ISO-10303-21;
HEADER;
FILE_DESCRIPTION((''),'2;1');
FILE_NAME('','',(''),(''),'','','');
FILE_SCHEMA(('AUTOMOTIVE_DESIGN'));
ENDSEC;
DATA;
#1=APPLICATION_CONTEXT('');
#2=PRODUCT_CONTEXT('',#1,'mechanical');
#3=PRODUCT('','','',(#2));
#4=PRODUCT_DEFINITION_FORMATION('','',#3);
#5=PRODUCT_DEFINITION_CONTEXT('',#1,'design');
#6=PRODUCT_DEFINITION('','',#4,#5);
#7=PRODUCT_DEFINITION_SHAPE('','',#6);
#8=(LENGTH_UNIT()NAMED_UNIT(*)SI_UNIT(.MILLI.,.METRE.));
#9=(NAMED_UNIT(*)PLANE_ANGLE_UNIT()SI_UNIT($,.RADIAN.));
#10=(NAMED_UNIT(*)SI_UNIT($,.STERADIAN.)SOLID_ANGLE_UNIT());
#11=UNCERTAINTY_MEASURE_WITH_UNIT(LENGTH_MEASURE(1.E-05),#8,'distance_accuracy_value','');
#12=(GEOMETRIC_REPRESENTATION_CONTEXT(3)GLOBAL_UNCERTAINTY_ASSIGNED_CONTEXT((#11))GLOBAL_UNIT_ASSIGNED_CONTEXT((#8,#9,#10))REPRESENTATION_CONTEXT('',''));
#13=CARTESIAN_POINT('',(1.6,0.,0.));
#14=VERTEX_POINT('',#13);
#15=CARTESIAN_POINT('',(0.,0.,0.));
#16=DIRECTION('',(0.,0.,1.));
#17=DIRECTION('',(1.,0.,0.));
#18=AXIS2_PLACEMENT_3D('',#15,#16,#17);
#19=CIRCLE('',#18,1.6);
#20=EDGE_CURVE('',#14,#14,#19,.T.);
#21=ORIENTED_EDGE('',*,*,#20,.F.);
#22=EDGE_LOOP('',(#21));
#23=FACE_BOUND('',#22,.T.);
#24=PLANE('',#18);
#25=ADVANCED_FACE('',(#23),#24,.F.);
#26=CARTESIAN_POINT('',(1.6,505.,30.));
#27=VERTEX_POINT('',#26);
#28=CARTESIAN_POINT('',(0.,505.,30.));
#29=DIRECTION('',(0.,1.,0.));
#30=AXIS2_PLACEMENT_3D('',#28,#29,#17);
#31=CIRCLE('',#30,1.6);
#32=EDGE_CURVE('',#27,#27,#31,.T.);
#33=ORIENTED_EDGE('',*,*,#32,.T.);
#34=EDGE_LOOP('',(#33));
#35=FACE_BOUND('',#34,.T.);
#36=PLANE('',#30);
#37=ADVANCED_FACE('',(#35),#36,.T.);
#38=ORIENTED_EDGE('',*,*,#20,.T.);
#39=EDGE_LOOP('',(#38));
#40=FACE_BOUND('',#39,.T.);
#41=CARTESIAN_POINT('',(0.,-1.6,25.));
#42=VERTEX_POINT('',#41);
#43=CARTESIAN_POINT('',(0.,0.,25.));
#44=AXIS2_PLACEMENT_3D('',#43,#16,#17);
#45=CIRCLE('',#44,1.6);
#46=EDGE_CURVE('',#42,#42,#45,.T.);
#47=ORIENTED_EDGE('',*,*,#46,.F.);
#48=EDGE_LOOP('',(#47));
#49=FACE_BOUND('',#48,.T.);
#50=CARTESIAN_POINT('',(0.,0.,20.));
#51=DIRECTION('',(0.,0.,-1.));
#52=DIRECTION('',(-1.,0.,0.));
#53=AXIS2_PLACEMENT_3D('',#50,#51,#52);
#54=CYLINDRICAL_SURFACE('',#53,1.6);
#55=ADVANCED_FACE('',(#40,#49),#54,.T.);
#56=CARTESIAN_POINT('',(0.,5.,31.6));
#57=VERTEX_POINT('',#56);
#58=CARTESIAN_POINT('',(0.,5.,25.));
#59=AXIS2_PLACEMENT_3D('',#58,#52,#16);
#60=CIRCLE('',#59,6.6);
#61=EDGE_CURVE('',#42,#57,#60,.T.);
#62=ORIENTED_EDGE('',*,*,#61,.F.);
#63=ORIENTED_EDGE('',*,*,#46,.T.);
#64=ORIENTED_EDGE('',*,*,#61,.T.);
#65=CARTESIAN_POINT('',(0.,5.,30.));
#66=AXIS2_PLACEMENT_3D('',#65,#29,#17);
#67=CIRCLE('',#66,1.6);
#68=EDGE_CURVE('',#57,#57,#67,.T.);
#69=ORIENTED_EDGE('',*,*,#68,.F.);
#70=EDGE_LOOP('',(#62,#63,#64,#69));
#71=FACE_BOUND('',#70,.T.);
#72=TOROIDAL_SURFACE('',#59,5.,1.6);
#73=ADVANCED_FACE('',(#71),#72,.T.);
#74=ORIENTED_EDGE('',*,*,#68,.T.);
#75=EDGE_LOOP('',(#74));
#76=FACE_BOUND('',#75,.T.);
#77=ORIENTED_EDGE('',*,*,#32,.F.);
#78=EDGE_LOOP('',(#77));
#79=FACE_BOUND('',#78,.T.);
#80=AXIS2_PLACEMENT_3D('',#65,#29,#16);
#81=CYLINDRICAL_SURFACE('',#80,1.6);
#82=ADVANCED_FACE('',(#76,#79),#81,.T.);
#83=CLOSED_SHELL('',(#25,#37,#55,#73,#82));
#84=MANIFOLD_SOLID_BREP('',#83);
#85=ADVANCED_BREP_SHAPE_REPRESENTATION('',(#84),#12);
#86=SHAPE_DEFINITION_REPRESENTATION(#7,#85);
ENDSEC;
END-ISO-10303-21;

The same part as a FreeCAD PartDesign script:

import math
import FreeCAD as App
import Part
import Sketcher
from FreeCAD import Vector
Q = App.Units.Quantity

doc = App.newDocument("Part")
params = doc.addObject("Spreadsheet::Sheet", "Params")
for row, (alias, value) in enumerate([
    ("sketch1_diameter", "3.2 mm"),
    ("pad1_length", "20 mm"),
    ("sketch2_diameter", "3.2 mm"),
    ("sketch3_radius", "5 mm"),
    ("sketch3_width", "500 mm"),
    ("sketch3_height", "5 mm"),
], start=1):
    params.set(f"A{row}", alias)
    params.set(f"B{row}", "=" + value)
    params.setAlias(f"B{row}", alias)

body = doc.addObject("PartDesign::Body", "Body")

# Sketch on XY plane
sketch1 = body.newObject("Sketcher::SketchObject", "Sketch")
sketch1.AttachmentSupport = (doc.getObject("XY_Plane"), [""])
sketch1.MapMode = "FlatFace"
sketch1.addGeometry(Part.Circle(Vector(0, 0, 0), Vector(0, 0, 1), 1.6), False)
sketch1.addConstraint([
    Sketcher.Constraint("Coincident", 0, 3, -1, 1),
    Sketcher.Constraint("Diameter", 0, Q("3.2 mm")),
])
sketch1.setExpression("Constraints[1]", "Params.sketch1_diameter")
pad1 = body.newObject("PartDesign::Pad", "Pad")
pad1.Profile = sketch1
pad1.setExpression("Length", "Params.pad1_length")

# Sketch on XY plane
sketch2 = body.newObject("Sketcher::SketchObject", "Sketch001")
sketch2.AttachmentSupport = (doc.getObject("XY_Plane"), [""])
sketch2.MapMode = "FlatFace"
sketch2.AttachmentOffset = App.Placement(Vector(0, 0, 20), App.Rotation())
sketch2.addGeometry(Part.Circle(Vector(0, 0, 0), Vector(0, 0, 1), 1.6), False)
sketch2.addConstraint([
    Sketcher.Constraint("Coincident", 0, 3, -1, 1),
    Sketcher.Constraint("Diameter", 0, Q("3.2 mm")),
])
sketch2.setExpression("Constraints[1]", "Params.sketch2_diameter")

# Sketch on YZ plane
sketch3 = body.newObject("Sketcher::SketchObject", "Sketch002")
sketch3.AttachmentSupport = (doc.getObject("YZ_Plane"), [""])
sketch3.MapMode = "FlatFace"
sketch3.addGeometry([
    Part.LineSegment(Vector(0, 20, 0), Vector(0, 25, 0)),
    Part.ArcOfCircle(Part.Circle(Vector(5, 25, 0), Vector(0, 0, 1), 5), math.radians(90), math.radians(180)),
    Part.LineSegment(Vector(5, 30, 0), Vector(505, 30, 0)),
], False)
sketch3.addConstraint([
    Sketcher.Constraint("Tangent", 0, 2, 1, 2),
    Sketcher.Constraint("Tangent", 1, 1, 2, 1),
    Sketcher.Constraint("Vertical", 0),
    Sketcher.Constraint("Horizontal", 2),
    Sketcher.Constraint("PointOnObject", 0, 1, -2),
    Sketcher.Constraint("Radius", 1, Q("5 mm")),
    Sketcher.Constraint("DistanceX", 2, 1, 2, 2, Q("500 mm")),
    Sketcher.Constraint("DistanceY", 0, 1, 0, 2, Q("5 mm")),
    Sketcher.Constraint("DistanceY", -1, 1, 1, 3, Q("25 mm")),
])
sketch3.setExpression("Constraints[5]", "Params.sketch3_radius")
sketch3.setExpression("Constraints[6]", "Params.sketch3_width")
sketch3.setExpression("Constraints[7]", "Params.sketch3_height")
doc.recompute()

additivepipe = body.newObject("PartDesign::AdditivePipe", "AdditivePipe")
additivepipe.Profile = sketch2
additivepipe.Spine = (sketch3, ["Edge1", "Edge2", "Edge3"])

doc.recompute()
